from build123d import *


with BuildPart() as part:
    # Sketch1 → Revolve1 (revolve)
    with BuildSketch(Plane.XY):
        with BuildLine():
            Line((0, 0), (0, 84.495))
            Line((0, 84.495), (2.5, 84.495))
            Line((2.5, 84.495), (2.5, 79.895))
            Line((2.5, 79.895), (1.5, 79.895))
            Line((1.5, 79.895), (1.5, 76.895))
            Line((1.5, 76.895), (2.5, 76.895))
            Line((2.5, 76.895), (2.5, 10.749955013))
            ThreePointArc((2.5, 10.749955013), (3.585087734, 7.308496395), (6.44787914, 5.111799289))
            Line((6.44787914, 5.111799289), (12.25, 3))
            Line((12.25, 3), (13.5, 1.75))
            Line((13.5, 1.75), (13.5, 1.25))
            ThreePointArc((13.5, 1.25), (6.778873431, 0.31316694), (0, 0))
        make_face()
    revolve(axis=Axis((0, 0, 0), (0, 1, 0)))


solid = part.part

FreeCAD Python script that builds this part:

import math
import FreeCAD as App
import Part
import Sketcher

V = App.Vector
Q = App.Units.Quantity

doc = App.newDocument("Part")
body = doc.addObject("PartDesign::Body", "Body")

# Sketch on XY plane
sketch1 = body.newObject("Sketcher::SketchObject", "Sketch")
sketch1.AttachmentSupport = (doc.getObject("XY_Plane"), [""])
sketch1.MapMode = "FlatFace"
sketch1.addGeometry([
    Part.LineSegment(V(0, 84.5, 0), V(0, 0, 0)),  # 0
    Part.ArcOfCircle(Part.Circle(V(0, 73.5, 0), V(0, 0, 1), 73.5), math.radians(-90), math.radians(-79.42)),  # 1
    Part.LineSegment(V(13.5, 1.2, 0), V(13.5, 1.8, 0)),  # 2
    Part.LineSegment(V(13.5, 1.8, 0), V(12.2, 3, 0)),  # 3
    Part.LineSegment(V(12.2, 3, 0), V(6.4, 5.1, 0)),  # 4
    Part.ArcOfCircle(Part.Circle(V(8.5, 10.7, 0), V(0, 0, 1), 6), math.radians(180), math.radians(250)),  # 5
    Part.LineSegment(V(2.5, 10.7, 0), V(2.5, 76.9, 0)),  # 6
    Part.LineSegment(V(2.5, 76.9, 0), V(1.5, 76.9, 0)),  # 7
    Part.LineSegment(V(1.5, 76.9, 0), V(1.5, 79.9, 0)),  # 8
    Part.LineSegment(V(1.5, 79.9, 0), V(2.5, 79.9, 0)),  # 9
    Part.LineSegment(V(2.5, 79.9, 0), V(2.5, 84.5, 0)),  # 10
    Part.LineSegment(V(2.5, 84.5, 0), V(0, 84.5, 0)),  # 11
], False)
sketch1.addConstraint([
    Sketcher.Constraint("Coincident", 0, 2, 1, 1),
    Sketcher.Constraint("Coincident", 1, 2, 2, 1),
    Sketcher.Constraint("Coincident", 2, 2, 3, 1),
    Sketcher.Constraint("Coincident", 3, 2, 4, 1),
    Sketcher.Constraint("Tangent", 4, 2, 5, 2),
    Sketcher.Constraint("Tangent", 5, 1, 6, 1),
    Sketcher.Constraint("Coincident", 6, 2, 7, 1),
    Sketcher.Constraint("Coincident", 7, 2, 8, 1),
    Sketcher.Constraint("Coincident", 8, 2, 9, 1),
    Sketcher.Constraint("Coincident", 9, 2, 10, 1),
    Sketcher.Constraint("Coincident", 10, 2, 11, 1),
    Sketcher.Constraint("Coincident", 11, 2, 0, 1),
    Sketcher.Constraint("Vertical", 0),
    Sketcher.Constraint("Vertical", 2),
    Sketcher.Constraint("Vertical", 6),
    Sketcher.Constraint("Horizontal", 7),
    Sketcher.Constraint("Vertical", 8),
    Sketcher.Constraint("Horizontal", 9),
    Sketcher.Constraint("Vertical", 10),
    Sketcher.Constraint("Horizontal", 11),
    Sketcher.Constraint("Coincident", 0, 2, -1, 1),
    Sketcher.Constraint("PointOnObject", 1, 3, -2),
    Sketcher.Constraint("Vertical", 6, 2, 9, 2),
    Sketcher.Constraint("Radius", 5, 6.0),
    Sketcher.Constraint("DistanceX", 7, 2, 7, 1, 1.0),
    Sketcher.Constraint("DistanceY", 8, 1, 8, 2, 3.0),
    Sketcher.Constraint("Angle", 3, Q("135 deg")),
    Sketcher.Constraint("Angle", 4, Q("160 deg")),
    Sketcher.Constraint("DistanceX", 11, 2, 11, 1, 2.5),
    Sketcher.Constraint("DistanceY", 2, 1, 2, 2, 0.5),
    Sketcher.Constraint("DistanceY", 10, 1, 10, 2, 4.6),
    Sketcher.Constraint("DistanceY", -1, 1, 3, 2, 3.0),
    Sketcher.Constraint("Radius", 1, 73.525),
    Sketcher.Constraint("DistanceX", 5, 3, 1, 2, 5.0),
    Sketcher.Constraint("DistanceY", 0, 2, 0, 1, 84.495),
])
revolution = body.newObject("PartDesign::Revolution", "Revolution")
revolution.Profile = sketch1
revolution.ReferenceAxis = (sketch1, ["V_Axis"])
revolution.Angle = 360

doc.recompute()
